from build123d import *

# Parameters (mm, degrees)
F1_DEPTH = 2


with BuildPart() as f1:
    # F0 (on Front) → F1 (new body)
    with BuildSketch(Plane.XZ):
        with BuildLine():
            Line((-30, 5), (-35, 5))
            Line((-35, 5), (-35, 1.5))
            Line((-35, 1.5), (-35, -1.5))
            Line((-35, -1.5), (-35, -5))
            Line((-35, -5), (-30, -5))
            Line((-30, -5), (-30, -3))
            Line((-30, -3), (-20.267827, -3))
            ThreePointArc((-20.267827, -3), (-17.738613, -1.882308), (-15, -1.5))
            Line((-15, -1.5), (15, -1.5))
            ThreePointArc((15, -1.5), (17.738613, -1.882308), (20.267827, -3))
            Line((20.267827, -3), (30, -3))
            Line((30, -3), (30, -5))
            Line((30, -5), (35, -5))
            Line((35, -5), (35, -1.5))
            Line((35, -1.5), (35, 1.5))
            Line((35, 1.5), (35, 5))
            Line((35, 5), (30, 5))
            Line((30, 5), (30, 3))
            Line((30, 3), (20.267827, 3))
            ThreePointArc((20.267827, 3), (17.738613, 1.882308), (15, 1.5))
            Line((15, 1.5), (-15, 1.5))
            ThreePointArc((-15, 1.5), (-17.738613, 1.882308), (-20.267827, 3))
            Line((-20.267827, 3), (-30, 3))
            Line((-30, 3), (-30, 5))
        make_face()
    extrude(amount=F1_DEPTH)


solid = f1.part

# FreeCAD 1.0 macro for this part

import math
import FreeCAD as App
import Part
import Sketcher

V = App.Vector
Q = App.Units.Quantity

doc = App.newDocument("Part")
body = doc.addObject("PartDesign::Body", "Body")

# Sketch on XZ plane
sketch1 = doc.addObject("Sketcher::SketchObject", "Sketch")
body.addObject(sketch1)
sketch1.AttachmentSupport = (doc.XZ_Plane, [""])
sketch1.MapMode = "FlatFace"
sketch1.addGeometry([
    Part.LineSegment(V(-30, 5, 0), V(-35, 5, 0)),  # 0
    Part.LineSegment(V(-35, 5, 0), V(-35, -5, 0)),  # 1
    Part.LineSegment(V(-35, -5, 0), V(-30, -5, 0)),  # 2
    Part.LineSegment(V(-30, -5, 0), V(-30, -3, 0)),  # 3
    Part.LineSegment(V(-30, -3, 0), V(-20.3, -3, 0)),  # 4
    Part.ArcOfCircle(Part.Circle(V(-15, -11.5, 0), V(0, 0, 1), 10), math.radians(90), math.radians(122)),  # 5
    Part.LineSegment(V(-15, -1.5, 0), V(15, -1.5, 0)),  # 6
    Part.ArcOfCircle(Part.Circle(V(15, -11.5, 0), V(0, 0, 1), 10), math.radians(58), math.radians(90)),  # 7
    Part.LineSegment(V(20.3, -3, 0), V(30, -3, 0)),  # 8
    Part.LineSegment(V(30, -3, 0), V(30, -5, 0)),  # 9
    Part.LineSegment(V(30, -5, 0), V(35, -5, 0)),  # 10
    Part.LineSegment(V(35, -5, 0), V(35, 5, 0)),  # 11
    Part.LineSegment(V(35, 5, 0), V(30, 5, 0)),  # 12
    Part.LineSegment(V(30, 5, 0), V(30, 3, 0)),  # 13
    Part.LineSegment(V(30, 3, 0), V(20.3, 3, 0)),  # 14
    Part.ArcOfCircle(Part.Circle(V(15, 11.5, 0), V(0, 0, 1), 10), math.radians(-90), math.radians(-58)),  # 15
    Part.LineSegment(V(15, 1.5, 0), V(-15, 1.5, 0)),  # 16
    Part.ArcOfCircle(Part.Circle(V(-15, 11.5, 0), V(0, 0, 1), 10), math.radians(-122), math.radians(-90)),  # 17
    Part.LineSegment(V(-20.3, 3, 0), V(-30, 3, 0)),  # 18
    Part.LineSegment(V(-30, 3, 0), V(-30, 5, 0)),  # 19
], False)
sketch1.addConstraint([
    Sketcher.Constraint("Coincident", 0, 2, 1, 1),
    Sketcher.Constraint("Coincident", 1, 2, 2, 1),
    Sketcher.Constraint("Coincident", 2, 2, 3, 1),
    Sketcher.Constraint("Coincident", 3, 2, 4, 1),
    Sketcher.Constraint("Coincident", 4, 2, 5, 2),
    Sketcher.Constraint("Tangent", 5, 1, 6, 1),
    Sketcher.Constraint("Tangent", 6, 2, 7, 2),
    Sketcher.Constraint("Coincident", 7, 1, 8, 1),
    Sketcher.Constraint("Coincident", 8, 2, 9, 1),
    Sketcher.Constraint("Coincident", 9, 2, 10, 1),
    Sketcher.Constraint("Coincident", 10, 2, 11, 1),
    Sketcher.Constraint("Coincident", 11, 2, 12, 1),
    Sketcher.Constraint("Coincident", 12, 2, 13, 1),
    Sketcher.Constraint("Coincident", 13, 2, 14, 1),
    Sketcher.Constraint("Coincident", 14, 2, 15, 2),
    Sketcher.Constraint("Tangent", 15, 1, 16, 1),
    Sketcher.Constraint("Tangent", 16, 2, 17, 2),
    Sketcher.Constraint("Coincident", 17, 1, 18, 1),
    Sketcher.Constraint("Coincident", 18, 2, 19, 1),
    Sketcher.Constraint("Coincident", 19, 2, 0, 1),
    Sketcher.Constraint("Horizontal", 0),
    Sketcher.Constraint("Vertical", 1),
    Sketcher.Constraint("Horizontal", 2),
    Sketcher.Constraint("Vertical", 3),
    Sketcher.Constraint("Horizontal", 4),
    Sketcher.Constraint("Horizontal", 6),
    Sketcher.Constraint("Horizontal", 8),
    Sketcher.Constraint("Vertical", 9),
    Sketcher.Constraint("Horizontal", 10),
    Sketcher.Constraint("Vertical", 11),
    Sketcher.Constraint("Horizontal", 12),
    Sketcher.Constraint("Vertical", 13),
    Sketcher.Constraint("Horizontal", 14),
    Sketcher.Constraint("Horizontal", 16),
    Sketcher.Constraint("Horizontal", 18),
    Sketcher.Constraint("Vertical", 19),
    Sketcher.Constraint("Equal", 5, 7),
    Sketcher.Constraint("Equal", 7, 15),
    Sketcher.Constraint("Equal", 15, 17),
    Sketcher.Constraint("Symmetric", 5, 3, 15, 3, -1, 1),
    Sketcher.Constraint("Symmetric", 0, 2, 10, 2, -1, 1),
    Sketcher.Constraint("Symmetric", 2, 2, 12, 2, -1, 1),
    Sketcher.Constraint("Symmetric", 7, 1, 17, 1, -1, 1),
    Sketcher.Constraint("Symmetric", 4, 2, 7, 1, -2),
    Sketcher.Constraint("Symmetric", 2, 2, 9, 2, -2),
    Sketcher.Constraint("Symmetric", 13, 2, 18, 2, -2),
    Sketcher.Constraint("Radius", 5, Q("10 mm")),
    Sketcher.Constraint("DistanceX", 0, 2, 0, 1, Q("5 mm")),
    Sketcher.Constraint("DistanceX", 6, 1, 6, 2, Q("30 mm")),
    Sketcher.Constraint("DistanceY", 1, 2, 1, 1, Q("10 mm")),
    Sketcher.Constraint("DistanceY", 3, 1, 3, 2, Q("2 mm")),
    Sketcher.Constraint("DistanceX", 0, 2, -1, 1, Q("35 mm")),
    Sketcher.Constraint("DistanceY", 7, 3, 15, 3, Q("23 mm")),
])
pad1 = doc.addObject("PartDesign::Pad", "Pad")
body.addObject(pad1)
pad1.Profile = sketch1
pad1.Length = 2

doc.recompute()
